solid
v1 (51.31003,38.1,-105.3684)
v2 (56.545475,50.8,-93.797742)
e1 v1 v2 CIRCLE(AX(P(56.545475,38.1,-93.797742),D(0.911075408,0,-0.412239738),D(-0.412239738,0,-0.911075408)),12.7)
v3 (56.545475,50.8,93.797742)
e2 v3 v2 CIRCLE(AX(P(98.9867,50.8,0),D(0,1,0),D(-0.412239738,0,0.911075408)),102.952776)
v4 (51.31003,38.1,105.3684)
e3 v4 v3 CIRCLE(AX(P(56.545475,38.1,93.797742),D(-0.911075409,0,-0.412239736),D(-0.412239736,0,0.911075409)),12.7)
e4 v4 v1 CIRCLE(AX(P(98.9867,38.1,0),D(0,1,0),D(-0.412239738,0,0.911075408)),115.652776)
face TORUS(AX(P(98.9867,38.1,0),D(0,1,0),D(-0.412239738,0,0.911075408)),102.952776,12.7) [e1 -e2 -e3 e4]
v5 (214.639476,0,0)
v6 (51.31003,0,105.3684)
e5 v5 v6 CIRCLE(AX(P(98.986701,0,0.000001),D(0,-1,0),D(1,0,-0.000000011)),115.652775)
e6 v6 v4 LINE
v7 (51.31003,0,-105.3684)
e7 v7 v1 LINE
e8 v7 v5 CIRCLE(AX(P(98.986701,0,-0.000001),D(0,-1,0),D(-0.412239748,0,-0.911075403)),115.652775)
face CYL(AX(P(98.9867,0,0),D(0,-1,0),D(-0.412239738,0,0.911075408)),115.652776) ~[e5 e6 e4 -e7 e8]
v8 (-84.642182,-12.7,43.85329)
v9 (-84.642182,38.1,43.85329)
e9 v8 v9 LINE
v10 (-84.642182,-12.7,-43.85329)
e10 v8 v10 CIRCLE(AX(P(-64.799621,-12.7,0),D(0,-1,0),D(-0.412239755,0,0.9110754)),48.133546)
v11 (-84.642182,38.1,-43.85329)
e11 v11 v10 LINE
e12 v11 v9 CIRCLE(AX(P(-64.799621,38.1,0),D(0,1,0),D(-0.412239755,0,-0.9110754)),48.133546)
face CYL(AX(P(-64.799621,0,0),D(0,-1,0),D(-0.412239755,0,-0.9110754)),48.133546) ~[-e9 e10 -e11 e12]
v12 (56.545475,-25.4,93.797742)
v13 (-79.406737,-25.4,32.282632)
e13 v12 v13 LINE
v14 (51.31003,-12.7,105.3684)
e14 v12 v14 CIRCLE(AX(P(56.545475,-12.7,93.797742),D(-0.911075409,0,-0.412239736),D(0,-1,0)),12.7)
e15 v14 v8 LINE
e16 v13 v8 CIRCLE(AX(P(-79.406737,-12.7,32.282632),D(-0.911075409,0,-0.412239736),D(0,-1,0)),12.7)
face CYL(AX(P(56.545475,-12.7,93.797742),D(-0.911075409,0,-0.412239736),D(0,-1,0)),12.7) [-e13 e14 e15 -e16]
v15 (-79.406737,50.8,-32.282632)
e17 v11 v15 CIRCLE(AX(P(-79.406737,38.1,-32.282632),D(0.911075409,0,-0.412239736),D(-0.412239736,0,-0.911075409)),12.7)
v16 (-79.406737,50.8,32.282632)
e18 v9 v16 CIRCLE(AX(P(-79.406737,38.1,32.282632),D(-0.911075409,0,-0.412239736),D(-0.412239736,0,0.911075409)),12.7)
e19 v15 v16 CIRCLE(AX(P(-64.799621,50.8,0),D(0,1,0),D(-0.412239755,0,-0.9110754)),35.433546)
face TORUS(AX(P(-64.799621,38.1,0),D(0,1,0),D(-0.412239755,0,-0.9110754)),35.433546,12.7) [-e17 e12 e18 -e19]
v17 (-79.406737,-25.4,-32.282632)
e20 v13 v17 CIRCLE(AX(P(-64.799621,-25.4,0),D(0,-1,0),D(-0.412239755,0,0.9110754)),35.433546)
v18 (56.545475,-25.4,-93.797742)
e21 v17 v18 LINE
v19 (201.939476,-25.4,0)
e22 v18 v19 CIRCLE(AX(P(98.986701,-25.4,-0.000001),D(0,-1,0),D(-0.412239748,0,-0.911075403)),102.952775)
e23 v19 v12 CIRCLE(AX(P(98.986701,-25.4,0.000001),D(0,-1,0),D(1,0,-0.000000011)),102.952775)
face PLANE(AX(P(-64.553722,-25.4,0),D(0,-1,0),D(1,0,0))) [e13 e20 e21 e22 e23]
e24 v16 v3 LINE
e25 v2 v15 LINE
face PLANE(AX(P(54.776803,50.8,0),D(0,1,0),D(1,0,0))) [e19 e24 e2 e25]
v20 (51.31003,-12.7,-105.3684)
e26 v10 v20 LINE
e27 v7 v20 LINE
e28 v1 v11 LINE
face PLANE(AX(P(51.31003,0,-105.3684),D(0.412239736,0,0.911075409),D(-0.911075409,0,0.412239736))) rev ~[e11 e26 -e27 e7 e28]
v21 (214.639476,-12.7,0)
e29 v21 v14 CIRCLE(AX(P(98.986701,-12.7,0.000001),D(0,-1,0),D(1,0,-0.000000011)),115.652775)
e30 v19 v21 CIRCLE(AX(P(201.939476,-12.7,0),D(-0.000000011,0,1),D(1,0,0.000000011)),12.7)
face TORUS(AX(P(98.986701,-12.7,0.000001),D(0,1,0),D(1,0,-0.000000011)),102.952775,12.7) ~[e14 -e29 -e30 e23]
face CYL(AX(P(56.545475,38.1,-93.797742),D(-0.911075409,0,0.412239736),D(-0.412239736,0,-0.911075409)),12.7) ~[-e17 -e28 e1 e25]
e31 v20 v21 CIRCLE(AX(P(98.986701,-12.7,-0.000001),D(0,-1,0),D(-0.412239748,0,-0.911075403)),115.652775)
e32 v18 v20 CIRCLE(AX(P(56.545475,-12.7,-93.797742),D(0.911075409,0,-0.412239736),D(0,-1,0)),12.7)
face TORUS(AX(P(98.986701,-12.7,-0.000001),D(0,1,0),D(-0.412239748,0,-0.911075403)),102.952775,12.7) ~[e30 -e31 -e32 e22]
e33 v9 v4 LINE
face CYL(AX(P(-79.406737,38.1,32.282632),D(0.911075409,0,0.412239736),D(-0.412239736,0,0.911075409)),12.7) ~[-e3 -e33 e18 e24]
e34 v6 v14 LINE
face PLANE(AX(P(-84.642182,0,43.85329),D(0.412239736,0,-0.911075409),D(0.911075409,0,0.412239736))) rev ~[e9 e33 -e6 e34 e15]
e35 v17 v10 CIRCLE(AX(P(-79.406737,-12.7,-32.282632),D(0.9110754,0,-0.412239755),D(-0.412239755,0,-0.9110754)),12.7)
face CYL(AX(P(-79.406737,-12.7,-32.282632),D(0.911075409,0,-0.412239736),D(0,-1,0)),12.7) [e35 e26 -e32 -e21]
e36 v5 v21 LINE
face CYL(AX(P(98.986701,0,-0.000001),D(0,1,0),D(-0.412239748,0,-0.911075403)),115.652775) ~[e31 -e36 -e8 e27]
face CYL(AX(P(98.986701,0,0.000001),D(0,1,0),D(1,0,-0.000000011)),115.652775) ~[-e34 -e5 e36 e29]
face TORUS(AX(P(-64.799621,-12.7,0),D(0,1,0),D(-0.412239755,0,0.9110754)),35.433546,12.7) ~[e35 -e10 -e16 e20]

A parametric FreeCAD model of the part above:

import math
import FreeCAD as App
import Part
import Sketcher

V = App.Vector
Q = App.Units.Quantity


def edges_at(feature, points):
    """Names of the edges that pass closest to the given points."""
    edges = feature.Shape.Edges
    near = lambda p: min(range(len(edges)), key=lambda i: edges[i].distToShape(Part.Vertex(*p))[0])
    return sorted({f"Edge{near(p) + 1}" for p in points})

doc = App.newDocument("Part")
body = doc.addObject("PartDesign::Body", "Body")

# Sketch on XZ plane
sketch1 = body.newObject("Sketcher::SketchObject", "Sketch")
sketch1.AttachmentSupport = (doc.getObject("XZ_Plane"), [""])
sketch1.MapMode = "FlatFace"
sketch1.addGeometry([
    Part.ArcOfCircle(Part.Circle(V(-64.799621, 0, 0), V(0, 0, 1), 48.133546), math.radians(114.345611), math.radians(245.654389)),  # 0
    Part.LineSegment(V(-84.642182, -43.85329, 0), V(51.31003, -105.3684, 0)),  # 1
    Part.ArcOfCircle(Part.Circle(V(98.986701, -0.000001, 0), V(0, 0, 1), 115.652775), math.radians(-114.34561), math.radians(0.000001)),  # 2
    Part.ArcOfCircle(Part.Circle(V(98.986701, 0.000001, 0), V(0, 0, 1), 115.652775), math.radians(-0.000001), math.radians(114.34561)),  # 3
    Part.LineSegment(V(51.31003, 105.3684, 0), V(-84.642182, 43.85329, 0)),  # 4
], False)
sketch1.addConstraint([
    Sketcher.Constraint("Tangent", 0, 2, 1, 1),
    Sketcher.Constraint("Tangent", 1, 2, 2, 1),
    Sketcher.Constraint("Tangent", 2, 2, 3, 1),
    Sketcher.Constraint("Tangent", 3, 2, 4, 1),
    Sketcher.Constraint("Tangent", 4, 2, 0, 1),
    Sketcher.Constraint("Equal", 2, 3),
    Sketcher.Constraint("Symmetric", 1, 2, 3, 2, -1),
    Sketcher.Constraint("PointOnObject", 2, 2, -1),
    Sketcher.Constraint("Radius", 0, Q("48.133546 mm")),
    Sketcher.Constraint("Radius", 2, Q("115.652775 mm")),
    Sketcher.Constraint("DistanceX", -1, 1, 2, 3, Q("98.986701 mm")),
    Sketcher.Constraint("DistanceY", 1, 2, -1, 1, Q("105.3684 mm")),
])
pad1 = body.newObject("PartDesign::Pad", "Pad")
pad1.Profile = sketch1
pad1.Length = Q("1 in")

# Sketch on XZ plane
sketch2 = body.newObject("Sketcher::SketchObject", "Sketch001")
sketch2.AttachmentSupport = (doc.getObject("XZ_Plane"), [""])
sketch2.MapMode = "FlatFace"
sketch2.addGeometry(Part.Circle(V(105.685264, 0, 0), V(0, 0, 1), 57.300749), False)
sketch2.addConstraint([
    Sketcher.Constraint("PointOnObject", 0, 3, -1),
    Sketcher.Constraint("Diameter", 0, Q("114.601498 mm")),
    Sketcher.Constraint("DistanceX", -1, 1, 0, 3, Q("105.685264 mm")),
])
pocket1 = body.newObject("PartDesign::Pocket", "Pocket")
pocket1.Profile = sketch2
pocket1.Length = Q("1 in")

# Sketch on XZ plane
sketch3 = body.newObject("Sketcher::SketchObject", "Sketch002")
sketch3.AttachmentSupport = (doc.getObject("XZ_Plane"), [""])
sketch3.MapMode = "FlatFace"
sketch3.addGeometry([
    Part.ArcOfCircle(Part.Circle(V(-64.799621, 0, 0), V(0, 0, 1), 48.133546), math.radians(114.345611), math.radians(245.654389)),
    Part.LineSegment(V(-84.642182, 43.85329, 0), V(51.31003, 105.3684, 0)),
    Part.ArcOfCircle(Part.Circle(V(98.9867, 0, 0), V(0, 0, 1), 115.652776), math.radians(-114.34561), math.radians(114.34561)),
    Part.LineSegment(V(51.31003, -105.3684, 0), V(-84.642182, -43.85329, 0)),
], False)
sketch3.addConstraint([
    Sketcher.Constraint("Tangent", 0, 1, 1, 1),
    Sketcher.Constraint("Tangent", 1, 2, 2, 2),
    Sketcher.Constraint("Tangent", 2, 1, 3, 1),
    Sketcher.Constraint("Tangent", 3, 2, 0, 2),
    Sketcher.Constraint("Symmetric", 1, 2, 2, 1, -1),
    Sketcher.Constraint("Radius", 0, Q("48.133546 mm")),
    Sketcher.Constraint("Radius", 2, Q("115.652776 mm")),
    Sketcher.Constraint("DistanceX", -1, 1, 2, 3, Q("98.9867 mm")),
    Sketcher.Constraint("DistanceY", -1, 1, 1, 2, Q("105.3684 mm")),
])
pad2 = body.newObject("PartDesign::Pad", "Pad001")
pad2.Profile = sketch3
pad2.Length = Q("2 in")
pad2.Reversed = True
doc.recompute()

fillet = body.newObject("PartDesign::Fillet", "Fillet")
fillet.Base = (pad2, edges_at(pad2, [(-16.666, 50.8, 74.611)]))
fillet.Radius = Q("0.5 in")
doc.recompute()

fillet2 = body.newObject("PartDesign::Fillet", "Fillet001")
fillet2.Base = (fillet, edges_at(fillet, [(-16.666, -25.4, 74.611)]))
fillet2.Radius = Q("0.5 in")

doc.recompute()
